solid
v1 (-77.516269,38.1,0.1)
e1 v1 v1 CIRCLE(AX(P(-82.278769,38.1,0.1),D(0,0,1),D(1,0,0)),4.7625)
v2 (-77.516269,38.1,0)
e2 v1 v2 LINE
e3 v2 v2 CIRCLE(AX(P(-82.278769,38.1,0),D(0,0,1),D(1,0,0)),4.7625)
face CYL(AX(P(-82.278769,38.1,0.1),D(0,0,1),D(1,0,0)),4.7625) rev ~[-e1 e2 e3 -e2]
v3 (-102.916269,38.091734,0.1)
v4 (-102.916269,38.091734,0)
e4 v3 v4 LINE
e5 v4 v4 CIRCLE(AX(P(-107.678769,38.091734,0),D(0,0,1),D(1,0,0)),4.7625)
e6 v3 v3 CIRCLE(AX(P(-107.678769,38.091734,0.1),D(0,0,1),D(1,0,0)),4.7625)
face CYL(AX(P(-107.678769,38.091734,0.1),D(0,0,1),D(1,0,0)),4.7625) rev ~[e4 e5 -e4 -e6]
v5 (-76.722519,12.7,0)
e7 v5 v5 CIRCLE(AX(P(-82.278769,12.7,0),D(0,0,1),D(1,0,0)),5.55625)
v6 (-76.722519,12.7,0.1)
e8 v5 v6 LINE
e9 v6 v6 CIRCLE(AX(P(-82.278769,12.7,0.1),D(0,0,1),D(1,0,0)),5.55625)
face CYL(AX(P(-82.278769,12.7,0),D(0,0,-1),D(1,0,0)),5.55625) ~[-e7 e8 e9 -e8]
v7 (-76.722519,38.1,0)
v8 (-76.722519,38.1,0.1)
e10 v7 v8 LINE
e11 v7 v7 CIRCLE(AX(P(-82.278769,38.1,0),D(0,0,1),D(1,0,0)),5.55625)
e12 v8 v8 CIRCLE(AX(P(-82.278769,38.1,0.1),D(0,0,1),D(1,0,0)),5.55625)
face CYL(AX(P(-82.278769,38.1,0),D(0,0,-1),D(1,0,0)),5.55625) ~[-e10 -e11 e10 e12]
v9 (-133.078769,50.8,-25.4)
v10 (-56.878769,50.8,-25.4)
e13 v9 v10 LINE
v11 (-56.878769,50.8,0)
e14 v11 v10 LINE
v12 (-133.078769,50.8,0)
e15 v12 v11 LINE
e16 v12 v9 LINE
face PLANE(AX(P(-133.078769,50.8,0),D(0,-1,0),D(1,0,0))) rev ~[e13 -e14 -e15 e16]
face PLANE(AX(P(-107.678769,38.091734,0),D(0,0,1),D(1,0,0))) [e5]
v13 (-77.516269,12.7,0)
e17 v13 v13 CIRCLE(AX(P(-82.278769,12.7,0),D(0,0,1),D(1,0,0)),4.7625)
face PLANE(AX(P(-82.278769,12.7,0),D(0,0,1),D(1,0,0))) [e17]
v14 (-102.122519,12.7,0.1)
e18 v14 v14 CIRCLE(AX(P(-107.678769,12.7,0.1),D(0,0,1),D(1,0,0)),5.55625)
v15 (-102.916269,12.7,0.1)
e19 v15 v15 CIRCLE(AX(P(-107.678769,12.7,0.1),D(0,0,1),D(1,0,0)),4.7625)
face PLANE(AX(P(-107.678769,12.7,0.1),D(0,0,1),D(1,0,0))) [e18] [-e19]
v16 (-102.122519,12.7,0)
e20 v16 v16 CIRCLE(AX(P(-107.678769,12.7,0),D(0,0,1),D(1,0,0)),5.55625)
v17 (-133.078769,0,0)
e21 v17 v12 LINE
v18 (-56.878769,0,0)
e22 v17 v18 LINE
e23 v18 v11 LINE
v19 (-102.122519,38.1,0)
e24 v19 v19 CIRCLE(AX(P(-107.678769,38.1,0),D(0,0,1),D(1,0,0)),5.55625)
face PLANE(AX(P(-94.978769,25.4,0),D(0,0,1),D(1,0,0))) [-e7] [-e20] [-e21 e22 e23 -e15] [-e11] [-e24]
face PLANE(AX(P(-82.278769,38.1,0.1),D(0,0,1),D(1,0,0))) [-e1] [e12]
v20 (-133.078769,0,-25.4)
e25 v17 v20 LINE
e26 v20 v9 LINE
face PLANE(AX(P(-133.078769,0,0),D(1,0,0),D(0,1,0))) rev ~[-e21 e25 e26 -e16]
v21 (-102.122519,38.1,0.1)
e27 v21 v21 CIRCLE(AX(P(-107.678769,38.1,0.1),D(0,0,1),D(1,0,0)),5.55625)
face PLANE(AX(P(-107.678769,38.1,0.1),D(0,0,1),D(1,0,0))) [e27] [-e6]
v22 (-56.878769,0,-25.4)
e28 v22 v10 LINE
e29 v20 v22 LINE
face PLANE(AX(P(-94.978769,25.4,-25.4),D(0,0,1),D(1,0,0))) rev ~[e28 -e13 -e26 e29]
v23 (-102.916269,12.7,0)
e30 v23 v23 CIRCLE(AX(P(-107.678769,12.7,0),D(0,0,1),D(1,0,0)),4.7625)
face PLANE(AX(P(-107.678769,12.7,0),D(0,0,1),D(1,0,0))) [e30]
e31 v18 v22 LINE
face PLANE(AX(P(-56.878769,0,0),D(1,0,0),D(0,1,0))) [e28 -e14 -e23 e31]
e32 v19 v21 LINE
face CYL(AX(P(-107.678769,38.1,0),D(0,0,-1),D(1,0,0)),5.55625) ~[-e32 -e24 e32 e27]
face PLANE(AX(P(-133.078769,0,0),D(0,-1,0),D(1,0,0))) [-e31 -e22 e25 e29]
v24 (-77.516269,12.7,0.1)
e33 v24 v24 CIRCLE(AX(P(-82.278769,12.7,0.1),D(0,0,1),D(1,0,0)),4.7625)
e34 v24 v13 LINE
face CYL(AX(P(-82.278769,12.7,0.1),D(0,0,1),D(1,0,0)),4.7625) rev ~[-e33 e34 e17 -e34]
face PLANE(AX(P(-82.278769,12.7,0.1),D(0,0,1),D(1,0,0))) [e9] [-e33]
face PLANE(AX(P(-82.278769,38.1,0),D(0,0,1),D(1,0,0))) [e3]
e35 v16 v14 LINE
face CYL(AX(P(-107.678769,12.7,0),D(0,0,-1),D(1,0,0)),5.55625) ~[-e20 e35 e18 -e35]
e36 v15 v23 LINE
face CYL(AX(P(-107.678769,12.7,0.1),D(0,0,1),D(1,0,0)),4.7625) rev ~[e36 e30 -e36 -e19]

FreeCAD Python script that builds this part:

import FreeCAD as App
import Part
import Sketcher
from FreeCAD import Vector
Q = App.Units.Quantity


def add_polygon(sketch, points):
    """Adds a closed chain of lines whose ends are joined by coincident constraints."""
    first, n = sketch.GeometryCount, len(points)
    for a, b in zip(points, points[1:] + points[:1]):
        sketch.addGeometry(Part.LineSegment(App.Vector(*a, 0), App.Vector(*b, 0)), False)
    for i in range(n):
        sketch.addConstraint(Sketcher.Constraint("Coincident", first + i, 2, first + (i + 1) % n, 1))

doc = App.newDocument("Part")
params = doc.addObject("Spreadsheet::Sheet", "Params")
for row, (alias, value) in enumerate([
    ("sketch1_width", "3 in"),
    ("sketch1_height", "2 in"),
    ("pad1_length", "1 in"),
    ("sketch2_diameter", "0.4375 in"),
    ("pad2_length", "0.1 mm"),
    ("sketch3_diameter", "0.375 in"),
    ("pocket1_length", "0.1 mm"),
], start=1):
    params.set(f"A{row}", alias)
    params.set(f"B{row}", "=" + value)
    params.setAlias(f"B{row}", alias)

body = doc.addObject("PartDesign::Body", "Body")

# Sketch on XY plane
sketch1 = doc.addObject("Sketcher::SketchObject", "Sketch")
body.addObject(sketch1)
sketch1.AttachmentSupport = (doc.XY_Plane, [""])
sketch1.MapMode = "FlatFace"
add_polygon(sketch1, [(-133, 51), (-133, 0), (-57, 0), (-57, 51)])  # lines 0-3
sketch1.addConstraint([
    Sketcher.Constraint("Vertical", 0),
    Sketcher.Constraint("Horizontal", 1),
    Sketcher.Constraint("Vertical", 2),
    Sketcher.Constraint("Horizontal", 3),
    Sketcher.Constraint("PointOnObject", 0, 2, -1),
    Sketcher.Constraint("DistanceX", 1, 1, 1, 2, Q("3 in")),
    Sketcher.Constraint("DistanceY", 0, 2, 0, 1, Q("2 in")),
    Sketcher.Constraint("DistanceX", 0, 2, -1, 1, Q("133.078769 mm")),
])
sketch1.setExpression("Constraints[9]", "Params.sketch1_width")
sketch1.setExpression("Constraints[10]", "Params.sketch1_height")
pad1 = doc.addObject("PartDesign::Pad", "Pad")
body.addObject(pad1)
pad1.Profile = sketch1
pad1.setExpression("Length", "Params.pad1_length")
pad1.Reversed = True

# Sketch on XY plane
sketch2 = doc.addObject("Sketcher::SketchObject", "Sketch001")
body.addObject(sketch2)
sketch2.AttachmentSupport = (doc.XY_Plane, [""])
sketch2.MapMode = "FlatFace"
sketch2.addGeometry([
    Part.Circle(Vector(-108, 38, 0), Vector(0, 0, 1), 6),
    Part.Circle(Vector(-82, 38, 0), Vector(0, 0, 1), 6),
    Part.Circle(Vector(-108, 13, 0), Vector(0, 0, 1), 6),
    Part.Circle(Vector(-82, 13, 0), Vector(0, 0, 1), 6),
], False)
sketch2.addConstraint([
    Sketcher.Constraint("Equal", 0, 1),
    Sketcher.Constraint("Equal", 1, 2),
    Sketcher.Constraint("Equal", 2, 3),
    Sketcher.Constraint("Horizontal", 0, 3, 1, 3),
    Sketcher.Constraint("Horizontal", 2, 3, 3, 3),
    Sketcher.Constraint("Vertical", 0, 3, 2, 3),
    Sketcher.Constraint("Vertical", 1, 3, 3, 3),
    Sketcher.Constraint("Diameter", 0, Q("0.4375 in")),
    Sketcher.Constraint("DistanceX", 0, 3, 1, 3, Q("1 in")),
    Sketcher.Constraint("DistanceY", 2, 3, 0, 3, Q("1 in")),
    Sketcher.Constraint("DistanceY", -1, 1, 0, 3, Q("1.5 in")),
    Sketcher.Constraint("DistanceX", 0, 3, -1, 1, Q("107.678769 mm")),
])
sketch2.setExpression("Constraints[7]", "Params.sketch2_diameter")
pad2 = doc.addObject("PartDesign::Pad", "Pad001")
body.addObject(pad2)
pad2.Profile = sketch2
pad2.setExpression("Length", "Params.pad2_length")

# Sketch on XY plane
sketch3 = doc.addObject("Sketcher::SketchObject", "Sketch002")
body.addObject(sketch3)
sketch3.AttachmentSupport = (doc.XY_Plane, [""])
sketch3.MapMode = "FlatFace"
sketch3.AttachmentOffset = App.Placement(Vector(0, 0, 0.1), App.Rotation())
sketch3.addGeometry([
    Part.Circle(Vector(-107.7, 38.1, 0), Vector(0, 0, 1), 4.8),
    Part.Circle(Vector(-82.3, 38.1, 0), Vector(0, 0, 1), 4.8),
    Part.Circle(Vector(-107.7, 12.7, 0), Vector(0, 0, 1), 4.8),
    Part.Circle(Vector(-82.3, 12.7, 0), Vector(0, 0, 1), 4.8),
], False)
sketch3.addConstraint([
    Sketcher.Constraint("Equal", 0, 1),
    Sketcher.Constraint("Equal", 1, 2),
    Sketcher.Constraint("Equal", 2, 3),
    Sketcher.Constraint("Horizontal", 2, 3, 3, 3),
    Sketcher.Constraint("Vertical", 0, 3, 2, 3),
    Sketcher.Constraint("Vertical", 1, 3, 3, 3),
    Sketcher.Constraint("Diameter", 0, Q("0.375 in")),
    Sketcher.Constraint("DistanceX", 0, 3, 1, 3, Q("1 in")),
    Sketcher.Constraint("DistanceY", 2, 3, 1, 3, Q("1 in")),
    Sketcher.Constraint("DistanceY", -1, 1, 1, 3, Q("1.5 in")),
    Sketcher.Constraint("DistanceX", 0, 3, -1, 1, Q("107.678769 mm")),
    Sketcher.Constraint("DistanceY", -1, 1, 0, 3, Q("38.091734 mm")),
])
sketch3.setExpression("Constraints[6]", "Params.sketch3_diameter")
pocket1 = doc.addObject("PartDesign::Pocket", "Pocket")
body.addObject(pocket1)
pocket1.Profile = sketch3
pocket1.setExpression("Length", "Params.pocket1_length")

doc.recompute()
